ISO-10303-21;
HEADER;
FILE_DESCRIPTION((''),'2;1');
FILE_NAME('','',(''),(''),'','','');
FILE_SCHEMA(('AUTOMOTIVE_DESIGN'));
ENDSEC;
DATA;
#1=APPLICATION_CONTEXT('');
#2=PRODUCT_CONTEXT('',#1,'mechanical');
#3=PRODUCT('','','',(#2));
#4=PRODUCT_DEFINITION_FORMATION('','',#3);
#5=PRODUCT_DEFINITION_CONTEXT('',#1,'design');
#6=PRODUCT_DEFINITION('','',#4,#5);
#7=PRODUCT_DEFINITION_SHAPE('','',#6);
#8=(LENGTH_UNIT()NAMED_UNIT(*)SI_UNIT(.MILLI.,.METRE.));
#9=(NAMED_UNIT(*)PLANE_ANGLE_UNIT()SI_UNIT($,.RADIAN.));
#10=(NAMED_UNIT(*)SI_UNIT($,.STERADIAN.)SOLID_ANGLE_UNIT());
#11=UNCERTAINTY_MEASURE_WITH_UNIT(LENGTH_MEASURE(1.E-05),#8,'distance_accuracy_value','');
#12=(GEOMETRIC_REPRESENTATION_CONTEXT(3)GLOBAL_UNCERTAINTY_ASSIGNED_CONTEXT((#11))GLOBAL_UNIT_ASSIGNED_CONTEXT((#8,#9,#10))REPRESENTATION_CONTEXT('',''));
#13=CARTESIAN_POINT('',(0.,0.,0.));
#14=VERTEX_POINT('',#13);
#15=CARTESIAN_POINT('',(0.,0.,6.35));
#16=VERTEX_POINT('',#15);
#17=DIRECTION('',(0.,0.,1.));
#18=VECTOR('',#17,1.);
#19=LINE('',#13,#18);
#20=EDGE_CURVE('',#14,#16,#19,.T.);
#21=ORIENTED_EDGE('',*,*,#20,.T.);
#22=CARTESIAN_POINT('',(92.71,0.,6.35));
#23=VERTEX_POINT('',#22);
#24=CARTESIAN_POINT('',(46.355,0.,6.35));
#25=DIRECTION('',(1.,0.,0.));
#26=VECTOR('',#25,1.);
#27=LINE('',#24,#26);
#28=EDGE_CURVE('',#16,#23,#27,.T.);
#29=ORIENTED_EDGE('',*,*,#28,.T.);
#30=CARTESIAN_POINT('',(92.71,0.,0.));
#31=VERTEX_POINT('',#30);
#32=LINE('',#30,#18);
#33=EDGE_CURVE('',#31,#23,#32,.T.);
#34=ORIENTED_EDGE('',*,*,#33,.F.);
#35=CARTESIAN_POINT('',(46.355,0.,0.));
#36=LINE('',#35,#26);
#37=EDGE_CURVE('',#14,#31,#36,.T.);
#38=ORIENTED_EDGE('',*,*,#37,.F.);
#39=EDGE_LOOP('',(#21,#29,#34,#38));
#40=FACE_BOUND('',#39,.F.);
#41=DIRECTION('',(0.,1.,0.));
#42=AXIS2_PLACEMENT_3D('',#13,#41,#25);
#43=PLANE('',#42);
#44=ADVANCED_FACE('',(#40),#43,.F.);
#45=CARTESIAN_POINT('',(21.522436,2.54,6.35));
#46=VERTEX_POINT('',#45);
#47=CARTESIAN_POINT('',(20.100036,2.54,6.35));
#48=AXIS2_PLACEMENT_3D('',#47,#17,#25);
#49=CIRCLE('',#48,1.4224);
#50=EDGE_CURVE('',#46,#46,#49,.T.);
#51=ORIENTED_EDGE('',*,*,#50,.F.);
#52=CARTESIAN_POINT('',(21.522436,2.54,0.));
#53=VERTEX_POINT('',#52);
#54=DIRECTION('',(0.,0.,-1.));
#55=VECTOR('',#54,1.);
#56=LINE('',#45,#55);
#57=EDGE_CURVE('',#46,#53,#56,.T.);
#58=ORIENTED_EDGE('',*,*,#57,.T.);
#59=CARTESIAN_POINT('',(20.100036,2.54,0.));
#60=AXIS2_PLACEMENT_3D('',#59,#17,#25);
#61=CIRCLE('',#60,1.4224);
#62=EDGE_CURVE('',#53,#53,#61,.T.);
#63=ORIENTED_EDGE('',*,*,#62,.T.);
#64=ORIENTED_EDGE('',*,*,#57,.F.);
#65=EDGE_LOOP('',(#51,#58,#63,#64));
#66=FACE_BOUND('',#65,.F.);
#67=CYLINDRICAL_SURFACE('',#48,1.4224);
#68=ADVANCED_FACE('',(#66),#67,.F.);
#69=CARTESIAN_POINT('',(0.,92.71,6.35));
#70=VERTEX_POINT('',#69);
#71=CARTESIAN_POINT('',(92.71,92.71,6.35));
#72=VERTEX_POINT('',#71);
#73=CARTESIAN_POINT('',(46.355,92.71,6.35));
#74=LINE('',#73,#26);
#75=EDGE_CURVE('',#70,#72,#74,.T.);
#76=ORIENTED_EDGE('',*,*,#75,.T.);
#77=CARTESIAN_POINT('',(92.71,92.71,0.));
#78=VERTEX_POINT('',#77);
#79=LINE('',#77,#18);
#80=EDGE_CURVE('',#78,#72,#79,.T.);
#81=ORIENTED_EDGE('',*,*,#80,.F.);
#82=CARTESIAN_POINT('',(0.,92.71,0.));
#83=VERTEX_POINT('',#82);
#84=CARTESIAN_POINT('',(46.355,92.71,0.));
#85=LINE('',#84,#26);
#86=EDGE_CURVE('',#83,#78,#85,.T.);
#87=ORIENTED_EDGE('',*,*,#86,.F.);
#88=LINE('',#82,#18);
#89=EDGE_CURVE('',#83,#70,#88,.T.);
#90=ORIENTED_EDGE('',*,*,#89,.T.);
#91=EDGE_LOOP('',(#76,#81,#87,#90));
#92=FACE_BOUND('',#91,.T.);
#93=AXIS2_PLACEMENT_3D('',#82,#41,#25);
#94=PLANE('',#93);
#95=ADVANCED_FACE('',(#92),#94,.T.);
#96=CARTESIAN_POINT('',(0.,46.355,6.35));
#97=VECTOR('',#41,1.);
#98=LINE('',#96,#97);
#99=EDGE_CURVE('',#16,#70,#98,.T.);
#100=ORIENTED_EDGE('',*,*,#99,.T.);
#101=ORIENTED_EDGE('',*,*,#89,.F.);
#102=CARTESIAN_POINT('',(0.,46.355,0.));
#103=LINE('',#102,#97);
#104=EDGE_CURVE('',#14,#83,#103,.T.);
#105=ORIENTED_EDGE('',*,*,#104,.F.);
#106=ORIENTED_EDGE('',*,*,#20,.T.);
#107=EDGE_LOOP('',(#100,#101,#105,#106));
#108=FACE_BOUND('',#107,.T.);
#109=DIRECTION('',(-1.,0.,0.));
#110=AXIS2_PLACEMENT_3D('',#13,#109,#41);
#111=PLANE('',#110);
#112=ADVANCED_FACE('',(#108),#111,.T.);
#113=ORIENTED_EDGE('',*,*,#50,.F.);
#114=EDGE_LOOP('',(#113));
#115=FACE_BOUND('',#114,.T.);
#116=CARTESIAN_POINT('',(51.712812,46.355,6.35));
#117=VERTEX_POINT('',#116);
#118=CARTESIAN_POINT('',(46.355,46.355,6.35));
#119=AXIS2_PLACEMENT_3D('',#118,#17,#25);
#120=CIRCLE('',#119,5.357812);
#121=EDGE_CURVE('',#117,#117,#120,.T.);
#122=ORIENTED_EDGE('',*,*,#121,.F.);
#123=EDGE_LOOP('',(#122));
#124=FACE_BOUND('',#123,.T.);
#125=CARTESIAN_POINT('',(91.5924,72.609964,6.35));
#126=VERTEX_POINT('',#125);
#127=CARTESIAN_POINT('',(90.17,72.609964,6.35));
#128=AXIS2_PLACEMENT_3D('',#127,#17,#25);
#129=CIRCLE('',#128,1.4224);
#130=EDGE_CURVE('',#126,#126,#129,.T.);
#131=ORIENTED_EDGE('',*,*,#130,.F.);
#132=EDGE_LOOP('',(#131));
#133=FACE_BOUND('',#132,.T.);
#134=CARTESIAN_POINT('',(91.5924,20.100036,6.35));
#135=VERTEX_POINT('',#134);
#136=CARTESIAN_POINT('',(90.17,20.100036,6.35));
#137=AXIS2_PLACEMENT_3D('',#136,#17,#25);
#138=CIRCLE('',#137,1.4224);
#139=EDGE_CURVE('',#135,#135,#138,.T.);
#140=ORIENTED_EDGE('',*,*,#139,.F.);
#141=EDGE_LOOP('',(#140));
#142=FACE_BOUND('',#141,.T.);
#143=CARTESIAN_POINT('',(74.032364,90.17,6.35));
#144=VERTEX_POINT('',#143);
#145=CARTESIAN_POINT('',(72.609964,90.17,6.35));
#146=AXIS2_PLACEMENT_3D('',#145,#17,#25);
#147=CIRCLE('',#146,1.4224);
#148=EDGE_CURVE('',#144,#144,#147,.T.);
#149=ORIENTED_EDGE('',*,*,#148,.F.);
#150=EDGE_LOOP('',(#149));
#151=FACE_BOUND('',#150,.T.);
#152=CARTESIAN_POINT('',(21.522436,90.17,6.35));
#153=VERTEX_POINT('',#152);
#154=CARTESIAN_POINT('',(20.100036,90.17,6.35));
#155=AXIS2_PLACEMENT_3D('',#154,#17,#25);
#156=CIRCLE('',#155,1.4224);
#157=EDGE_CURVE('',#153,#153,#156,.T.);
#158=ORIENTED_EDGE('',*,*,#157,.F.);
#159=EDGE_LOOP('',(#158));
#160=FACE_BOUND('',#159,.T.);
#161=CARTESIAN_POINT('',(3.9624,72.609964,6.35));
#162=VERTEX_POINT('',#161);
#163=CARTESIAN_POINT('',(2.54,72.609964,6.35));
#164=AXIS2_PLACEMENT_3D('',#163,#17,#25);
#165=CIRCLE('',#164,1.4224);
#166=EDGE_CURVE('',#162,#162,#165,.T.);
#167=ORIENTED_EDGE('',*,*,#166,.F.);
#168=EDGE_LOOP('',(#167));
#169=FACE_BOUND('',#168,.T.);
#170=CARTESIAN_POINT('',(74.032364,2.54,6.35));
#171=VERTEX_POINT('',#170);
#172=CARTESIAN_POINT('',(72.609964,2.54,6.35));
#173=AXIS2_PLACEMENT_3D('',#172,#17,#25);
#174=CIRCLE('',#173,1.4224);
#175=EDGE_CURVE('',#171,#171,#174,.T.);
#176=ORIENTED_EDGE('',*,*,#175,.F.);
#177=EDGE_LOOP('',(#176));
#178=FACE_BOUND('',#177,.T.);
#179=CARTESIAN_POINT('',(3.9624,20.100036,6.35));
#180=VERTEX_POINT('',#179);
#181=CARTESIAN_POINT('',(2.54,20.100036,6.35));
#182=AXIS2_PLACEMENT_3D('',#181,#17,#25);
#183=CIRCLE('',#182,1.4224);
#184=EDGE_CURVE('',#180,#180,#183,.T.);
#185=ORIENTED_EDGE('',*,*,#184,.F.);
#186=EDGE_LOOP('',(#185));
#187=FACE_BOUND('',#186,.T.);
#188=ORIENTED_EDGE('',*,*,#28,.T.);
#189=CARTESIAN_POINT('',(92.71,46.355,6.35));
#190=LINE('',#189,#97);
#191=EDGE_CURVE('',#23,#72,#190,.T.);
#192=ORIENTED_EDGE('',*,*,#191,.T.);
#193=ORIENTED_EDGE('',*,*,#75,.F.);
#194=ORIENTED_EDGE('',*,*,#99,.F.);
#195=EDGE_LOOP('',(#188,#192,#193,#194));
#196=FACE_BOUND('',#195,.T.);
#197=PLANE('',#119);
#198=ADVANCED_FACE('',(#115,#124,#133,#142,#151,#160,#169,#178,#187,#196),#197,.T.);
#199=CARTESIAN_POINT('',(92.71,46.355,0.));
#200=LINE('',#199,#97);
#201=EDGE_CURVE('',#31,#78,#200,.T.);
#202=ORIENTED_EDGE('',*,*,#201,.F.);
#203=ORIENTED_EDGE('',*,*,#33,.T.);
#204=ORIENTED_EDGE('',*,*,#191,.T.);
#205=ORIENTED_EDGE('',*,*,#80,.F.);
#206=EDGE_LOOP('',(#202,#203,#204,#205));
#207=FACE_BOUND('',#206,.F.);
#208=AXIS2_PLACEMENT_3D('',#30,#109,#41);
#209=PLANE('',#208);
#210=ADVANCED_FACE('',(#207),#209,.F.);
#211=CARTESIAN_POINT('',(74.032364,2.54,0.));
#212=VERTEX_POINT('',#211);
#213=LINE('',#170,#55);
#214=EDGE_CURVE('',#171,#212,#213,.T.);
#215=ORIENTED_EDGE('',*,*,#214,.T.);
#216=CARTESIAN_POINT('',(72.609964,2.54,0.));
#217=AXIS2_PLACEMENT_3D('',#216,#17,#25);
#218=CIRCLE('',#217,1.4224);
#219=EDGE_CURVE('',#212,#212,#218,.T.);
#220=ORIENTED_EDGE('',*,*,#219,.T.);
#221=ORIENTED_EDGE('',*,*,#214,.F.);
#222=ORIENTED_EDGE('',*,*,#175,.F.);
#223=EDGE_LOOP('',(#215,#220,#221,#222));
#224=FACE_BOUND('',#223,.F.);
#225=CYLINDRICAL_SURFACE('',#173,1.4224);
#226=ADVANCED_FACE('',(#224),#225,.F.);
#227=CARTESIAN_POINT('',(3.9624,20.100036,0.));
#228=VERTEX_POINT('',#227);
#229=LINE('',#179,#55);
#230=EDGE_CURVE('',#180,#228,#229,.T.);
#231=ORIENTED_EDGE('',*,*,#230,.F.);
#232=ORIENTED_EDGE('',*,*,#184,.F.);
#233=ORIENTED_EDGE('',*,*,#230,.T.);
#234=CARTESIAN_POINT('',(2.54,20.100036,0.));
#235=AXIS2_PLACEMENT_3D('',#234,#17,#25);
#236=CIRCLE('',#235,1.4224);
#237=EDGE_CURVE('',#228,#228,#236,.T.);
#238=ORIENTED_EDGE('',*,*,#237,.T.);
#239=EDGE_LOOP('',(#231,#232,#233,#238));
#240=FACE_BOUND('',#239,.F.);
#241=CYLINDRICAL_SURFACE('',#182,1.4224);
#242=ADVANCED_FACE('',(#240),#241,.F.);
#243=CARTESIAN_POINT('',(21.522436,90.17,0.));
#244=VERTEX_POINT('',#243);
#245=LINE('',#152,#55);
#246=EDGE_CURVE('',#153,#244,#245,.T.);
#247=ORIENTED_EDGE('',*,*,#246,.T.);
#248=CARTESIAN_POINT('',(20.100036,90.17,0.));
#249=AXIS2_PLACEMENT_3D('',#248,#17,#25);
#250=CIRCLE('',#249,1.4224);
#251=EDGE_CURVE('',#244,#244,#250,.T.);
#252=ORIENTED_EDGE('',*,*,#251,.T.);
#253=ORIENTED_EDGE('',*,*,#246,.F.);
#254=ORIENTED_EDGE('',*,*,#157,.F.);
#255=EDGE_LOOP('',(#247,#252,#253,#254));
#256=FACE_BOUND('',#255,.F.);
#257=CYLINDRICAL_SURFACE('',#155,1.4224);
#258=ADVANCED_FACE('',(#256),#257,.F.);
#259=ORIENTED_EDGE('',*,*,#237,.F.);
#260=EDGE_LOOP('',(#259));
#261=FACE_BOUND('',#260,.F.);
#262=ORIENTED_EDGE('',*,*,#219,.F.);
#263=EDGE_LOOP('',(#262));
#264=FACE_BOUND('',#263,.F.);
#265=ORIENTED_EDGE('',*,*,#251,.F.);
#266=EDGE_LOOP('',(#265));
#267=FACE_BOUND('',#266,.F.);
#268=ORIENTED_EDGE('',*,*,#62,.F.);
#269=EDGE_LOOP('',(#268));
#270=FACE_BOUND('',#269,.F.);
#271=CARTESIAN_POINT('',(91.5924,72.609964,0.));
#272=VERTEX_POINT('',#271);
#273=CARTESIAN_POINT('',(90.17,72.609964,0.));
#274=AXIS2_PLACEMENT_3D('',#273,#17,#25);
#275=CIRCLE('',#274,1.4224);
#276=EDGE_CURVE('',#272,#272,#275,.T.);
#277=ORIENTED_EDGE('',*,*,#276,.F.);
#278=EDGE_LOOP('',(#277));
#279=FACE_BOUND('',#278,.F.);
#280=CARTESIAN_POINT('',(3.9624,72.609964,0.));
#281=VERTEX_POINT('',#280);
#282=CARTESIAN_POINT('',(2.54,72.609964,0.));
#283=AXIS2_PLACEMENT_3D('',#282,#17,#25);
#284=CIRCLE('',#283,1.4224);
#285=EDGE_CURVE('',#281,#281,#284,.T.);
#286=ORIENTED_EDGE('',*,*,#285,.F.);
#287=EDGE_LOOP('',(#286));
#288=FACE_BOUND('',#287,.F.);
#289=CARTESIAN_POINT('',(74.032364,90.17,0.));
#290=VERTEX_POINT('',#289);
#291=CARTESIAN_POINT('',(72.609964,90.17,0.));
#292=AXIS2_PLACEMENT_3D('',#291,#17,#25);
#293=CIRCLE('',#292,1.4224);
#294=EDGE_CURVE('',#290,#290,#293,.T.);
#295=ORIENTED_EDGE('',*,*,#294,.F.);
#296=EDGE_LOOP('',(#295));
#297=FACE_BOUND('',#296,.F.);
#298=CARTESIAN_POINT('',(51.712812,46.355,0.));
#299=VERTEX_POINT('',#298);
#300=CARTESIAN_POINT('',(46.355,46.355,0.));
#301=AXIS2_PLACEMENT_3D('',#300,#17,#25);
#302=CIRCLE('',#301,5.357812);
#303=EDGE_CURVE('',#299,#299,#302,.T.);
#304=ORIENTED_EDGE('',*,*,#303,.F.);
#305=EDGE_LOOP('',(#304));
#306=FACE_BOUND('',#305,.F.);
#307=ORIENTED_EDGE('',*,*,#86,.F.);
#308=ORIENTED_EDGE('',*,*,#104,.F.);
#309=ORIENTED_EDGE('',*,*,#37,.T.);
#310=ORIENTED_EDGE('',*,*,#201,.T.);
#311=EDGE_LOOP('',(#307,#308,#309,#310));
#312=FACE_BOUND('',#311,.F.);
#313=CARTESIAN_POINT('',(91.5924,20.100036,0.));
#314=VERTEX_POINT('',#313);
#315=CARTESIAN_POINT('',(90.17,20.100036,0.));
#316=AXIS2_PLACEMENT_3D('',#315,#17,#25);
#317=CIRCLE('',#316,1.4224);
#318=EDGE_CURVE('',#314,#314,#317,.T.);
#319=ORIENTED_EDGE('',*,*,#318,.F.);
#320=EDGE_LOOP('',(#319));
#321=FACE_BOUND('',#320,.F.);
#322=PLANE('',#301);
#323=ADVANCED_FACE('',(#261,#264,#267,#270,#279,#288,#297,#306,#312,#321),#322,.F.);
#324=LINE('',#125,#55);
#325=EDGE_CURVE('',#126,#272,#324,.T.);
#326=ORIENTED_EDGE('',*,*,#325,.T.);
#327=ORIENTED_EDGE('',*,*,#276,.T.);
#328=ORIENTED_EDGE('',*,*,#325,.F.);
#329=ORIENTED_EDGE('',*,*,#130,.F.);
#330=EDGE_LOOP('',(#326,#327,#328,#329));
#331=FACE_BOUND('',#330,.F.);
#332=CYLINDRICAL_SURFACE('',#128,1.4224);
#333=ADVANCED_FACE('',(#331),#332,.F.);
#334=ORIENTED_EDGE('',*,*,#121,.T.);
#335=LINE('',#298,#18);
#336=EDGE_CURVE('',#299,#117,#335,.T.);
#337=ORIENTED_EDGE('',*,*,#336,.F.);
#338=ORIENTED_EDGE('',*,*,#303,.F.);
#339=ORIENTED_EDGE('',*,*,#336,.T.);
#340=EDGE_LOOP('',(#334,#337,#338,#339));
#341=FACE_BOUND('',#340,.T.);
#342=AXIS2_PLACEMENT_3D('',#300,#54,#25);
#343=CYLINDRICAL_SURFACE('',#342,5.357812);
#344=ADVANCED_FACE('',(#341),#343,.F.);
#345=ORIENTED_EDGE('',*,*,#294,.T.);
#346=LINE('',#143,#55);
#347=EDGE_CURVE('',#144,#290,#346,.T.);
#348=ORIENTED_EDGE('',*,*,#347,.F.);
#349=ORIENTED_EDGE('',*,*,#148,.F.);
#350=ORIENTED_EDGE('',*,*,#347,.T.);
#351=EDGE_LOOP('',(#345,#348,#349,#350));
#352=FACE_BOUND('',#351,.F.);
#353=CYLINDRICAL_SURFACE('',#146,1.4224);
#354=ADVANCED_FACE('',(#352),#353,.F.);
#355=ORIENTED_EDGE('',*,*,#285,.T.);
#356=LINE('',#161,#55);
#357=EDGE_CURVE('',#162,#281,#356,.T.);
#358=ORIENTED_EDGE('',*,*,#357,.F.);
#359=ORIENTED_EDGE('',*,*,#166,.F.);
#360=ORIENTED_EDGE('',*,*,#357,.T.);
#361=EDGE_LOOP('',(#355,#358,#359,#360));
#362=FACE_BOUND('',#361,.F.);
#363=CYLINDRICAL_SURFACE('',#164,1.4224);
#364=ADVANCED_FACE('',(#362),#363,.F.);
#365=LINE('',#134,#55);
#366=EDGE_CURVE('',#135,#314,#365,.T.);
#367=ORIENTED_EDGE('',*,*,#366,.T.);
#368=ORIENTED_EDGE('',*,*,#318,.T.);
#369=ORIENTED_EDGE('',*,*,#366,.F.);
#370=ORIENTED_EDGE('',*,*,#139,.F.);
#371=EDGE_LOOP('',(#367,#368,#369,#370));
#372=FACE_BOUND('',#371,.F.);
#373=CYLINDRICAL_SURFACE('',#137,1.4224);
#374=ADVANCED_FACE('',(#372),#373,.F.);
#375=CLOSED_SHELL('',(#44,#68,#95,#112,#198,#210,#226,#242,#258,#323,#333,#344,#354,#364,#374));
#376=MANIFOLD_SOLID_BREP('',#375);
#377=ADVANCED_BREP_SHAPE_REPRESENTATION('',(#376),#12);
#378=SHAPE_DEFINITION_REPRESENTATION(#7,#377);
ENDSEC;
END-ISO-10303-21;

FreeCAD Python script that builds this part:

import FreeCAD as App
import Part
import Sketcher
Q = App.Units.Quantity


def add_polygon(sketch, points):
    """Adds a closed chain of lines whose ends are joined by coincident constraints."""
    first, n = sketch.GeometryCount, len(points)
    for a, b in zip(points, points[1:] + points[:1]):
        sketch.addGeometry(Part.LineSegment(App.Vector(*a, 0), App.Vector(*b, 0)), False)
    for i in range(n):
        sketch.addConstraint(Sketcher.Constraint("Coincident", first + i, 2, first + (i + 1) % n, 1))

doc = App.newDocument("Part")
body = doc.addObject("PartDesign::Body", "Body")

sketch1 = body.newObject("Sketcher::SketchObject", "Sketch")
sketch1.AttachmentSupport = (doc.getObject("XY_Plane"), [""])
sketch1.MapMode = "FlatFace"
add_polygon(sketch1, [(0, 92.71), (0, 0), (92.71, 0), (92.71, 92.71)])
sketch1.addGeometry(Part.Circle(App.Vector(46.355, 46.355, 0), App.Vector(0, 0, 1), 5.357812), False)
sketch1.addConstraint([
    Sketcher.Constraint("Vertical", 0),
    Sketcher.Constraint("Horizontal", 1),
    Sketcher.Constraint("Vertical", 2),
    Sketcher.Constraint("Horizontal", 3),
    Sketcher.Constraint("Coincident", 0, 2, -1, 1),
    Sketcher.Constraint("Equal", 3, 0),
    Sketcher.Constraint("Diameter", 4, Q("0.421875 in")),
    Sketcher.Constraint("DistanceX", 1, 1, 1, 2, Q("3.65 in")),
    Sketcher.Constraint("DistanceX", -1, 1, 4, 3, Q("1.825 in")),
    Sketcher.Constraint("DistanceY", -1, 1, 4, 3, Q("1.825 in")),
])
pad1 = body.newObject("PartDesign::Pad", "Pad")
pad1.Profile = sketch1
pad1.Length = Q("0.25 in")

sketch2 = body.newObject("Sketcher::SketchObject", "Sketch001")
sketch2.AttachmentSupport = (doc.getObject("XY_Plane"), [""])
sketch2.MapMode = "FlatFace"
sketch2.AttachmentOffset = App.Placement(App.Vector(0, 0, 0.25 * 25.4), App.Rotation())
sketch2.addGeometry([
    Part.Circle(App.Vector(2.54, 20.100036, 0), App.Vector(0, 0, 1), 1.4224),
    Part.Circle(App.Vector(20.100036, 2.54, 0), App.Vector(0, 0, 1), 1.4224),
    Part.Circle(App.Vector(72.609964, 2.54, 0), App.Vector(0, 0, 1), 1.4224),
    Part.Circle(App.Vector(90.17, 20.100036, 0), App.Vector(0, 0, 1), 1.4224),
    Part.Circle(App.Vector(90.17, 72.609964, 0), App.Vector(0, 0, 1), 1.4224),
    Part.Circle(App.Vector(72.609964, 90.17, 0), App.Vector(0, 0, 1), 1.4224),
    Part.Circle(App.Vector(20.100036, 90.17, 0), App.Vector(0, 0, 1), 1.4224),
    Part.Circle(App.Vector(2.54, 72.609964, 0), App.Vector(0, 0, 1), 1.4224),
], False)
sketch2.addConstraint([
    Sketcher.Constraint("Equal", 0, 1),
    Sketcher.Constraint("Equal", 1, 2),
    Sketcher.Constraint("Equal", 2, 3),
    Sketcher.Constraint("Equal", 3, 4),
    Sketcher.Constraint("Equal", 4, 5),
    Sketcher.Constraint("Equal", 5, 6),
    Sketcher.Constraint("Equal", 6, 7),
    Sketcher.Constraint("Horizontal", 1, 3, 2, 3),
    Sketcher.Constraint("Horizontal", 0, 3, 3, 3),
    Sketcher.Constraint("Horizontal", 5, 3, 6, 3),
    Sketcher.Constraint("Horizontal", 4, 3, 7, 3),
    Sketcher.Constraint("Vertical", 3, 3, 4, 3),
    Sketcher.Constraint("Vertical", 2, 3, 5, 3),
    Sketcher.Constraint("Vertical", 1, 3, 6, 3),
    Sketcher.Constraint("Vertical", 0, 3, 7, 3),
    Sketcher.Constraint("Diameter", 0, Q("0.112 in")),
    Sketcher.Constraint("DistanceX", -1, 1, 0, 3, Q("0.1 in")),
    Sketcher.Constraint("DistanceY", -1, 1, 1, 3, Q("0.1 in")),
    Sketcher.Constraint("DistanceX", -1, 1, 3, 3, Q("3.55 in")),
    Sketcher.Constraint("DistanceY", -1, 1, 5, 3, Q("3.55 in")),
    Sketcher.Constraint("DistanceX", 1, 3, 2, 3, 52.509928),
    Sketcher.Constraint("DistanceY", 3, 3, 4, 3, 52.509928),
    Sketcher.Constraint("DistanceY", -1, 1, 0, 3, 20.100036),
    Sketcher.Constraint("DistanceX", -1, 1, 1, 3, 20.100036),
])
pocket1 = body.newObject("PartDesign::Pocket", "Pocket")
pocket1.Profile = sketch2
pocket1.Length = Q("0.25 in")

doc.recompute()
